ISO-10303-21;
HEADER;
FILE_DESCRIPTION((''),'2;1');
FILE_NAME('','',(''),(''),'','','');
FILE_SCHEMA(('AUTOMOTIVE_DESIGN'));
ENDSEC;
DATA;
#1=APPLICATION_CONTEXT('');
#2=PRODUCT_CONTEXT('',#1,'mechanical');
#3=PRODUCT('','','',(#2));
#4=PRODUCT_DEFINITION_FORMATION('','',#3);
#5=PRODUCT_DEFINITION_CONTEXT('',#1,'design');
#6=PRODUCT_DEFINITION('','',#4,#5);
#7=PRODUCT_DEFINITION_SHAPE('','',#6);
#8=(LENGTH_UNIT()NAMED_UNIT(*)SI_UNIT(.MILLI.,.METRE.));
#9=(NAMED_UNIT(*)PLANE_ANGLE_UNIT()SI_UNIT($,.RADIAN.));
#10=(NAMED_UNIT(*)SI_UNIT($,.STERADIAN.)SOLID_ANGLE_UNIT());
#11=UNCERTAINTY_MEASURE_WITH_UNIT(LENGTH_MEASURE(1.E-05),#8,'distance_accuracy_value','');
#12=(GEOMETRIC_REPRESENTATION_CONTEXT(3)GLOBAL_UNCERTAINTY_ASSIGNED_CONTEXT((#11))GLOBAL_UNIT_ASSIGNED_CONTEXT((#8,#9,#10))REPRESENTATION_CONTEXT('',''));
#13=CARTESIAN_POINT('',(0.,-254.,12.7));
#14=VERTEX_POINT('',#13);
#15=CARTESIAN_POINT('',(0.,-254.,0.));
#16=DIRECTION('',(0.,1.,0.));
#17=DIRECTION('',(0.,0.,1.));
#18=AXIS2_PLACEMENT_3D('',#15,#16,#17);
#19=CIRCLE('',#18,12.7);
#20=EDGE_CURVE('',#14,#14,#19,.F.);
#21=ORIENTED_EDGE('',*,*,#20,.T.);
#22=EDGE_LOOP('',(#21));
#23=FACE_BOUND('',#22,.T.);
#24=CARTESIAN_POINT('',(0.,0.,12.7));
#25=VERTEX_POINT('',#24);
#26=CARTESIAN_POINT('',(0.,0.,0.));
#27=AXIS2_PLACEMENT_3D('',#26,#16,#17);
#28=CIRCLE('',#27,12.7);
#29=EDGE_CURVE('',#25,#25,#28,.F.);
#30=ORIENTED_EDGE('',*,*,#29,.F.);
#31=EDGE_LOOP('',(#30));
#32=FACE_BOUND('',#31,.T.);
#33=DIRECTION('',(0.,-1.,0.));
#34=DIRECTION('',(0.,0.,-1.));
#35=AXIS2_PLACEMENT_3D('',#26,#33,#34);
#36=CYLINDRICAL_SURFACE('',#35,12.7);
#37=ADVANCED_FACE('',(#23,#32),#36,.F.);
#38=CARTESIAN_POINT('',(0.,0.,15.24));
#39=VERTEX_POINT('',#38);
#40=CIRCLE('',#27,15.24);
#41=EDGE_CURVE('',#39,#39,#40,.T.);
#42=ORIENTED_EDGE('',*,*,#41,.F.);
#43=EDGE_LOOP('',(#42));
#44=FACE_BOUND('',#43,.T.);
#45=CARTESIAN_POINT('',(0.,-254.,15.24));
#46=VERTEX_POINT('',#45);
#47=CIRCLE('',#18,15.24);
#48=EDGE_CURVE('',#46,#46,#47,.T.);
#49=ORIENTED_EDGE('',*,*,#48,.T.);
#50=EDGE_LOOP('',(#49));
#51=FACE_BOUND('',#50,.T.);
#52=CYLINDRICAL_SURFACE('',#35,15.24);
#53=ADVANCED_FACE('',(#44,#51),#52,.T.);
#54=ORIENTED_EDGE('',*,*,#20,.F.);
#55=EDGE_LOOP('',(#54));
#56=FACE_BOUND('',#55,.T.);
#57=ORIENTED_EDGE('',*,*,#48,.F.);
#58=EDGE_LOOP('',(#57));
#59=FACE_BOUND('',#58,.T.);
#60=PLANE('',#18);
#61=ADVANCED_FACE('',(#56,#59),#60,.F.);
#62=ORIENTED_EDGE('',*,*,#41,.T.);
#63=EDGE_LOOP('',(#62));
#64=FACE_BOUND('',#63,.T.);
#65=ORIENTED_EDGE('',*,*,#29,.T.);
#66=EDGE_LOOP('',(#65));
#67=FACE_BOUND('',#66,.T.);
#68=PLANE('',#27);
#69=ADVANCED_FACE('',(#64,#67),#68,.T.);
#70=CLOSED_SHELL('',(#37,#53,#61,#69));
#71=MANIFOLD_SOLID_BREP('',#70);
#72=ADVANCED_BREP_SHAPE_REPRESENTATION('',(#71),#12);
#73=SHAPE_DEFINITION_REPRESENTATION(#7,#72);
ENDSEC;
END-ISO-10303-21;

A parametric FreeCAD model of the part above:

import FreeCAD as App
import Part
import Sketcher
from FreeCAD import Vector
Q = App.Units.Quantity

doc = App.newDocument("Part")
body = doc.addObject("PartDesign::Body", "Body")

# Sketch on XZ plane
sketch1 = body.newObject("Sketcher::SketchObject", "Sketch")
sketch1.AttachmentSupport = (doc.getObject("XZ_Plane"), [""])
sketch1.MapMode = "FlatFace"
sketch1.addGeometry([
    Part.Circle(Vector(0, 0, 0), Vector(0, 0, 1), 15),
    Part.Circle(Vector(0, 0, 0), Vector(0, 0, 1), 13),
], False)
sketch1.addConstraint([
    Sketcher.Constraint("Coincident", 0, 3, -1, 1),
    Sketcher.Constraint("Coincident", 1, 3, -1, 1),
    Sketcher.Constraint("Diameter", 1, Q("1 in")),
    Sketcher.Constraint("Diameter", 0, Q("1.2 in")),
])

# Sketch on XY plane
sketch2 = body.newObject("Sketcher::SketchObject", "Sketch001")
sketch2.AttachmentSupport = (doc.getObject("XY_Plane"), [""])
sketch2.MapMode = "FlatFace"
sketch2.addGeometry(Part.LineSegment(Vector(0, 0, 0), Vector(0, -254, 0)), False)
sketch2.addConstraint([
    Sketcher.Constraint("Vertical", 0),
    Sketcher.Constraint("Coincident", 0, 1, -1, 1),
    Sketcher.Constraint("DistanceY", 0, 2, 0, 1, Q("10 in")),
])
doc.recompute()

additivepipe = body.newObject("PartDesign::AdditivePipe", "AdditivePipe")
additivepipe.Profile = sketch1
additivepipe.Spine = (sketch2, ["Edge1"])

doc.recompute()
